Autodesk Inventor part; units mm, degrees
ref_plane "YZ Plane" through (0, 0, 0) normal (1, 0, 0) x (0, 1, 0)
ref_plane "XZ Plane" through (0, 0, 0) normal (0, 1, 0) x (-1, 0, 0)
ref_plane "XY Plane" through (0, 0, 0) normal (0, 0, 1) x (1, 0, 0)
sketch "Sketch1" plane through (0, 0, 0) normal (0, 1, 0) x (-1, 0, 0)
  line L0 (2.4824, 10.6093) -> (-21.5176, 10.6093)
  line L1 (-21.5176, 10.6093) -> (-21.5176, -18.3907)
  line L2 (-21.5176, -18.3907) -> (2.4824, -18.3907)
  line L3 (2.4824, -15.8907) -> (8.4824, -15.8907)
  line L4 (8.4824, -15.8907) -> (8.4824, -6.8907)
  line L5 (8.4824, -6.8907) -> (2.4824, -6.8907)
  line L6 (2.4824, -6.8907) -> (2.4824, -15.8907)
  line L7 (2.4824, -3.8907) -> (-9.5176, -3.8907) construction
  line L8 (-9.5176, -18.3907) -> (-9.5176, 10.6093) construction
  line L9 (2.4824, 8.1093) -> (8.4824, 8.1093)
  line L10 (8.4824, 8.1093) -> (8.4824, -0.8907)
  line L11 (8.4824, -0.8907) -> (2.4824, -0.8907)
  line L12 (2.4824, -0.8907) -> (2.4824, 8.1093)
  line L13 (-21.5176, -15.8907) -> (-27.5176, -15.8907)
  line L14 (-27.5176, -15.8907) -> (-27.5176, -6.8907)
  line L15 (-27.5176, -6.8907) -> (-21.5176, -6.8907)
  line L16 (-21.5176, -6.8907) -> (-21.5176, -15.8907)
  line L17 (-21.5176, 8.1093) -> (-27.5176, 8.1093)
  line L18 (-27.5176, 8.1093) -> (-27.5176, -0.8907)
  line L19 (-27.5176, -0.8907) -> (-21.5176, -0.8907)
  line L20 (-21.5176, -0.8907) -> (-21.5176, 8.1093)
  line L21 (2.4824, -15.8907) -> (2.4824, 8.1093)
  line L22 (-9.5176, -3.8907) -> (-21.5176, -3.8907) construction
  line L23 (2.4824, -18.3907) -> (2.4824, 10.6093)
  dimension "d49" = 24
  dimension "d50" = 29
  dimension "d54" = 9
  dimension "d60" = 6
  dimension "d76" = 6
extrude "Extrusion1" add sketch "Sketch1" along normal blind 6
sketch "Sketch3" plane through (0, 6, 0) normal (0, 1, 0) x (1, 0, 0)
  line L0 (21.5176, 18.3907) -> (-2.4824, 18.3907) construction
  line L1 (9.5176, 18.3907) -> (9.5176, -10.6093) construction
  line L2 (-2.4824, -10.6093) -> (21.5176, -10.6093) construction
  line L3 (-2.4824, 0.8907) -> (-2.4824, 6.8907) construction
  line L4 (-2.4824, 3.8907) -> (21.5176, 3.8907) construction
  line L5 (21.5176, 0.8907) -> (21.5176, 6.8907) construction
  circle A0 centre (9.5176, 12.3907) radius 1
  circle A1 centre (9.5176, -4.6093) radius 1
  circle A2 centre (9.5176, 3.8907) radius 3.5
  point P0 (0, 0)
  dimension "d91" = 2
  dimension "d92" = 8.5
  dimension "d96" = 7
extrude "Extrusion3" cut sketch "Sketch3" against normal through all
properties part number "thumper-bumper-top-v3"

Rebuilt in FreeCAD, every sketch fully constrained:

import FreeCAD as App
import Part
import Sketcher
Q = App.Units.Quantity

doc = App.newDocument("Part")
params = doc.addObject("Spreadsheet::Sheet", "Params")
for row, (alias, value) in enumerate([
    ("sketch1_width", "24 mm"),
    ("sketch1_width2", "6 mm"),
    ("sketch1_height", "9 mm"),
    ("pad1_length", "6 mm"),
    ("sketch2_diameter", "2 mm"),
    ("sketch2_diameter2", "7 mm"),
], start=1):
    params.set(f"A{row}", alias)
    params.set(f"B{row}", "=" + value)
    params.setAlias(f"B{row}", alias)

body = doc.addObject("PartDesign::Body", "Body")

sketch1 = body.newObject("Sketcher::SketchObject", "Sketch")
sketch1.AttachmentSupport = (doc.getObject("XZ_Plane"), [""])
sketch1.MapMode = "FlatFace"
sketch1.addGeometry([
    Part.LineSegment(App.Vector(-2.5, 8.1, 0), App.Vector(-2.5, 10.6, 0)),
    Part.LineSegment(App.Vector(-2.5, 10.6, 0), App.Vector(21.5, 10.6, 0)),
    Part.LineSegment(App.Vector(21.5, 10.6, 0), App.Vector(21.5, 8.1, 0)),
    Part.LineSegment(App.Vector(21.5, 8.1, 0), App.Vector(27.5, 8.1, 0)),
    Part.LineSegment(App.Vector(27.5, 8.1, 0), App.Vector(27.5, -0.9, 0)),
    Part.LineSegment(App.Vector(27.5, -0.9, 0), App.Vector(21.5, -0.9, 0)),
    Part.LineSegment(App.Vector(21.5, -0.9, 0), App.Vector(21.5, -6.9, 0)),
    Part.LineSegment(App.Vector(21.5, -6.9, 0), App.Vector(27.5, -6.9, 0)),
    Part.LineSegment(App.Vector(27.5, -6.9, 0), App.Vector(27.5, -15.9, 0)),
    Part.LineSegment(App.Vector(27.5, -15.9, 0), App.Vector(21.5, -15.9, 0)),
    Part.LineSegment(App.Vector(21.5, -15.9, 0), App.Vector(21.5, -18.4, 0)),
    Part.LineSegment(App.Vector(21.5, -18.4, 0), App.Vector(-2.5, -18.4, 0)),
    Part.LineSegment(App.Vector(-2.5, -18.4, 0), App.Vector(-2.5, -15.9, 0)),
    Part.LineSegment(App.Vector(-2.5, -15.9, 0), App.Vector(-8.5, -15.9, 0)),
    Part.LineSegment(App.Vector(-8.5, -15.9, 0), App.Vector(-8.5, -6.9, 0)),
    Part.LineSegment(App.Vector(-8.5, -6.9, 0), App.Vector(-2.5, -6.9, 0)),
    Part.LineSegment(App.Vector(-2.5, -6.9, 0), App.Vector(-2.5, -0.9, 0)),
    Part.LineSegment(App.Vector(-2.5, -0.9, 0), App.Vector(-8.5, -0.9, 0)),
    Part.LineSegment(App.Vector(-8.5, -0.9, 0), App.Vector(-8.5, 8.1, 0)),
    Part.LineSegment(App.Vector(-8.5, 8.1, 0), App.Vector(-2.5, 8.1, 0)),
], False)
sketch1.addConstraint([
    Sketcher.Constraint("Coincident", 0, 2, 1, 1),
    Sketcher.Constraint("Coincident", 1, 2, 2, 1),
    Sketcher.Constraint("Coincident", 2, 2, 3, 1),
    Sketcher.Constraint("Coincident", 3, 2, 4, 1),
    Sketcher.Constraint("Coincident", 4, 2, 5, 1),
    Sketcher.Constraint("Coincident", 5, 2, 6, 1),
    Sketcher.Constraint("Coincident", 6, 2, 7, 1),
    Sketcher.Constraint("Coincident", 7, 2, 8, 1),
    Sketcher.Constraint("Coincident", 8, 2, 9, 1),
    Sketcher.Constraint("Coincident", 9, 2, 10, 1),
    Sketcher.Constraint("Coincident", 10, 2, 11, 1),
    Sketcher.Constraint("Coincident", 11, 2, 12, 1),
    Sketcher.Constraint("Coincident", 12, 2, 13, 1),
    Sketcher.Constraint("Coincident", 13, 2, 14, 1),
    Sketcher.Constraint("Coincident", 14, 2, 15, 1),
    Sketcher.Constraint("Coincident", 15, 2, 16, 1),
    Sketcher.Constraint("Coincident", 16, 2, 17, 1),
    Sketcher.Constraint("Coincident", 17, 2, 18, 1),
    Sketcher.Constraint("Coincident", 18, 2, 19, 1),
    Sketcher.Constraint("Coincident", 19, 2, 0, 1),
    Sketcher.Constraint("Vertical", 0),
    Sketcher.Constraint("Horizontal", 1),
    Sketcher.Constraint("Vertical", 2),
    Sketcher.Constraint("Horizontal", 3),
    Sketcher.Constraint("Vertical", 4),
    Sketcher.Constraint("Horizontal", 5),
    Sketcher.Constraint("Vertical", 6),
    Sketcher.Constraint("Horizontal", 7),
    Sketcher.Constraint("Vertical", 8),
    Sketcher.Constraint("Horizontal", 9),
    Sketcher.Constraint("Vertical", 10),
    Sketcher.Constraint("Horizontal", 11),
    Sketcher.Constraint("Vertical", 12),
    Sketcher.Constraint("Horizontal", 13),
    Sketcher.Constraint("Vertical", 14),
    Sketcher.Constraint("Horizontal", 15),
    Sketcher.Constraint("Vertical", 16),
    Sketcher.Constraint("Horizontal", 17),
    Sketcher.Constraint("Vertical", 18),
    Sketcher.Constraint("Horizontal", 19),
    Sketcher.Constraint("Horizontal", 9, 2, 12, 2),
    Sketcher.Constraint("Horizontal", 7, 2, 14, 2),
    Sketcher.Constraint("Horizontal", 5, 2, 16, 2),
    Sketcher.Constraint("Horizontal", 3, 2, 18, 2),
    Sketcher.Constraint("Vertical", 2, 2, 5, 2),
    Sketcher.Constraint("Vertical", 4, 2, 7, 2),
    Sketcher.Constraint("Vertical", 6, 2, 9, 2),
    Sketcher.Constraint("Vertical", 0, 2, 11, 2),
    Sketcher.Constraint("Vertical", 12, 2, 15, 2),
    Sketcher.Constraint("Vertical", 14, 2, 17, 2),
    Sketcher.Constraint("Equal", 9, 13),
    Sketcher.Constraint("Equal", 19, 6),
    Sketcher.Constraint("Equal", 4, 8),
    Sketcher.Constraint("Equal", 2, 10),
    Sketcher.Constraint("DistanceX", 1, 1, 1, 2, Q("24 mm")),
    Sketcher.Constraint("DistanceX", 3, 1, 3, 2, Q("6 mm")),
    Sketcher.Constraint("DistanceY", 4, 2, 4, 1, Q("9 mm")),
    Sketcher.Constraint("DistanceY", 11, 2, 0, 2, Q("29 mm")),
    Sketcher.Constraint("DistanceX", 0, 2, -1, 1, Q("2.4824 mm")),
    Sketcher.Constraint("DistanceY", -1, 1, 0, 2, Q("10.6093 mm")),
])
sketch1.setExpression("Constraints[54]", "Params.sketch1_width")
sketch1.setExpression("Constraints[55]", "Params.sketch1_width2")
sketch1.setExpression("Constraints[56]", "Params.sketch1_height")
pad1 = body.newObject("PartDesign::Pad", "Pad")
pad1.Profile = sketch1
pad1.setExpression("Length", "Params.pad1_length")
pad1.Reversed = True

sketch2 = body.newObject("Sketcher::SketchObject", "Sketch001")
sketch2.AttachmentSupport = (doc.getObject("XZ_Plane"), [""])
sketch2.MapMode = "FlatFace"
sketch2.AttachmentOffset = App.Placement(App.Vector(0, 0, -6), App.Rotation())
sketch2.addGeometry([
    Part.Circle(App.Vector(9.5, -12.4, 0), App.Vector(0, 0, 1), 1),
    Part.Circle(App.Vector(9.5, 4.6, 0), App.Vector(0, 0, 1), 1),
    Part.Circle(App.Vector(9.5, -3.9, 0), App.Vector(0, 0, 1), 3.5),
], False)
sketch2.addConstraint([
    Sketcher.Constraint("Equal", 0, 1),
    Sketcher.Constraint("Vertical", 0, 3, 1, 3),
    Sketcher.Constraint("Vertical", 1, 3, 2, 3),
    Sketcher.Constraint("Diameter", 0, Q("2 mm")),
    Sketcher.Constraint("Diameter", 2, Q("7 mm")),
    Sketcher.Constraint("DistanceY", 0, 3, 2, 3, Q("8.5 mm")),
    Sketcher.Constraint("DistanceY", 2, 3, 1, 3, Q("8.5 mm")),
    Sketcher.Constraint("DistanceX", -1, 1, 0, 3, Q("9.5176 mm")),
    Sketcher.Constraint("DistanceY", 0, 3, -1, 1, Q("12.3907 mm")),
])
sketch2.setExpression("Constraints[3]", "Params.sketch2_diameter")
sketch2.setExpression("Constraints[4]", "Params.sketch2_diameter2")
pocket1 = body.newObject("PartDesign::Pocket", "Pocket")
pocket1.Profile = sketch2
pocket1.Type = "ThroughAll"
pocket1.Reversed = True

doc.recompute()
